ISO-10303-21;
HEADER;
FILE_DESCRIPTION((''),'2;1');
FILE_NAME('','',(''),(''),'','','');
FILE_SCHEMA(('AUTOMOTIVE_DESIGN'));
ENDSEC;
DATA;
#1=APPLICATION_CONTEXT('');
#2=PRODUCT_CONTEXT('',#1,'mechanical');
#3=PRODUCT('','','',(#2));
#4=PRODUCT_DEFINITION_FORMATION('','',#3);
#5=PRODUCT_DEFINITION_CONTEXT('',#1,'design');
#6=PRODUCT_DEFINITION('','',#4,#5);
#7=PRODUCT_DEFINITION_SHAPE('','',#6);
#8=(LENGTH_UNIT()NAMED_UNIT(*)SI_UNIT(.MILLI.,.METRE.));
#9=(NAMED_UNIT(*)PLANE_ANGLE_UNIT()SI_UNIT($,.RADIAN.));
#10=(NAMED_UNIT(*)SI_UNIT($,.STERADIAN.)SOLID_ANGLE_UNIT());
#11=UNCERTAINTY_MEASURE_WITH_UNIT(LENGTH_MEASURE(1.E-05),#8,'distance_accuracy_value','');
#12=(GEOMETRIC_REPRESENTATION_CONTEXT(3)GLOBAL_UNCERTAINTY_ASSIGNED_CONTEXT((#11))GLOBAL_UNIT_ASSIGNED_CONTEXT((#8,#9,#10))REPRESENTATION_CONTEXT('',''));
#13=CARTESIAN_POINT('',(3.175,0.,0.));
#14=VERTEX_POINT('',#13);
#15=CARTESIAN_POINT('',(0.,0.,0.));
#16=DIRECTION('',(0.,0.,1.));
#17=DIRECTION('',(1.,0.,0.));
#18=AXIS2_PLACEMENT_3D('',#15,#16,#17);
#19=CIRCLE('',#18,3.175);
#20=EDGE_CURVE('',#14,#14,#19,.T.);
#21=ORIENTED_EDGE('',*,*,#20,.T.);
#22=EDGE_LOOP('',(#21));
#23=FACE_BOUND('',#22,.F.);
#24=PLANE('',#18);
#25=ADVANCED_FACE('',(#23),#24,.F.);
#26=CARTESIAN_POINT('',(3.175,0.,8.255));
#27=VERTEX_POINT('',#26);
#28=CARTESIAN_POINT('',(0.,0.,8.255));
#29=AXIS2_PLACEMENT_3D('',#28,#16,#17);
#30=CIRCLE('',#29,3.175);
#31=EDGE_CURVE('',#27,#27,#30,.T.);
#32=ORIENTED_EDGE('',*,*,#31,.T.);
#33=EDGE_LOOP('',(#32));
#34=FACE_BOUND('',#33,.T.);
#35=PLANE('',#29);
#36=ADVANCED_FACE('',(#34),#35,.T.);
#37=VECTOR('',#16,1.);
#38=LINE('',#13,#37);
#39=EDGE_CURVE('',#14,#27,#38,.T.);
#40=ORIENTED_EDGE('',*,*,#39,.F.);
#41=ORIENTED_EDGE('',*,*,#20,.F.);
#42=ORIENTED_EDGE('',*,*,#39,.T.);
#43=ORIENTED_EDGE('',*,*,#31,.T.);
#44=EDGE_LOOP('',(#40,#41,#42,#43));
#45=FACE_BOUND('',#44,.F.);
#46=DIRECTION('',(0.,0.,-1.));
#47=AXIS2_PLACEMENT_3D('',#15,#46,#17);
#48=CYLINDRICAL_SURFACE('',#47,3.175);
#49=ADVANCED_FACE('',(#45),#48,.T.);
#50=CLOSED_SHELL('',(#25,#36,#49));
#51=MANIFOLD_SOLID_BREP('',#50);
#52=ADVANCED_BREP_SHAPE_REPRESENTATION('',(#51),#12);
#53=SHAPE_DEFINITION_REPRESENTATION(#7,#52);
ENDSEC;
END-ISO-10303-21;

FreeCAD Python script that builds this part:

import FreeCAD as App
import Part
import Sketcher

V = App.Vector
Q = App.Units.Quantity

doc = App.newDocument("Part")
body = doc.addObject("PartDesign::Body", "Body")

# Sketch on XY plane
sketch1 = body.newObject("Sketcher::SketchObject", "Sketch")
sketch1.AttachmentSupport = (doc.getObject("XY_Plane"), [""])
sketch1.MapMode = "FlatFace"
sketch1.addGeometry(Part.Circle(V(0, 0, 0), V(0, 0, 1), 3.2), False)
sketch1.addConstraint(Sketcher.Constraint("Coincident", 0, 3, -1, 1))
sketch1.addConstraint(Sketcher.Constraint("Diameter", 0, Q("0.25 in")))
pad1 = body.newObject("PartDesign::Pad", "Pad")
pad1.Profile = sketch1
pad1.Length = Q("0.325 in")

doc.recompute()
